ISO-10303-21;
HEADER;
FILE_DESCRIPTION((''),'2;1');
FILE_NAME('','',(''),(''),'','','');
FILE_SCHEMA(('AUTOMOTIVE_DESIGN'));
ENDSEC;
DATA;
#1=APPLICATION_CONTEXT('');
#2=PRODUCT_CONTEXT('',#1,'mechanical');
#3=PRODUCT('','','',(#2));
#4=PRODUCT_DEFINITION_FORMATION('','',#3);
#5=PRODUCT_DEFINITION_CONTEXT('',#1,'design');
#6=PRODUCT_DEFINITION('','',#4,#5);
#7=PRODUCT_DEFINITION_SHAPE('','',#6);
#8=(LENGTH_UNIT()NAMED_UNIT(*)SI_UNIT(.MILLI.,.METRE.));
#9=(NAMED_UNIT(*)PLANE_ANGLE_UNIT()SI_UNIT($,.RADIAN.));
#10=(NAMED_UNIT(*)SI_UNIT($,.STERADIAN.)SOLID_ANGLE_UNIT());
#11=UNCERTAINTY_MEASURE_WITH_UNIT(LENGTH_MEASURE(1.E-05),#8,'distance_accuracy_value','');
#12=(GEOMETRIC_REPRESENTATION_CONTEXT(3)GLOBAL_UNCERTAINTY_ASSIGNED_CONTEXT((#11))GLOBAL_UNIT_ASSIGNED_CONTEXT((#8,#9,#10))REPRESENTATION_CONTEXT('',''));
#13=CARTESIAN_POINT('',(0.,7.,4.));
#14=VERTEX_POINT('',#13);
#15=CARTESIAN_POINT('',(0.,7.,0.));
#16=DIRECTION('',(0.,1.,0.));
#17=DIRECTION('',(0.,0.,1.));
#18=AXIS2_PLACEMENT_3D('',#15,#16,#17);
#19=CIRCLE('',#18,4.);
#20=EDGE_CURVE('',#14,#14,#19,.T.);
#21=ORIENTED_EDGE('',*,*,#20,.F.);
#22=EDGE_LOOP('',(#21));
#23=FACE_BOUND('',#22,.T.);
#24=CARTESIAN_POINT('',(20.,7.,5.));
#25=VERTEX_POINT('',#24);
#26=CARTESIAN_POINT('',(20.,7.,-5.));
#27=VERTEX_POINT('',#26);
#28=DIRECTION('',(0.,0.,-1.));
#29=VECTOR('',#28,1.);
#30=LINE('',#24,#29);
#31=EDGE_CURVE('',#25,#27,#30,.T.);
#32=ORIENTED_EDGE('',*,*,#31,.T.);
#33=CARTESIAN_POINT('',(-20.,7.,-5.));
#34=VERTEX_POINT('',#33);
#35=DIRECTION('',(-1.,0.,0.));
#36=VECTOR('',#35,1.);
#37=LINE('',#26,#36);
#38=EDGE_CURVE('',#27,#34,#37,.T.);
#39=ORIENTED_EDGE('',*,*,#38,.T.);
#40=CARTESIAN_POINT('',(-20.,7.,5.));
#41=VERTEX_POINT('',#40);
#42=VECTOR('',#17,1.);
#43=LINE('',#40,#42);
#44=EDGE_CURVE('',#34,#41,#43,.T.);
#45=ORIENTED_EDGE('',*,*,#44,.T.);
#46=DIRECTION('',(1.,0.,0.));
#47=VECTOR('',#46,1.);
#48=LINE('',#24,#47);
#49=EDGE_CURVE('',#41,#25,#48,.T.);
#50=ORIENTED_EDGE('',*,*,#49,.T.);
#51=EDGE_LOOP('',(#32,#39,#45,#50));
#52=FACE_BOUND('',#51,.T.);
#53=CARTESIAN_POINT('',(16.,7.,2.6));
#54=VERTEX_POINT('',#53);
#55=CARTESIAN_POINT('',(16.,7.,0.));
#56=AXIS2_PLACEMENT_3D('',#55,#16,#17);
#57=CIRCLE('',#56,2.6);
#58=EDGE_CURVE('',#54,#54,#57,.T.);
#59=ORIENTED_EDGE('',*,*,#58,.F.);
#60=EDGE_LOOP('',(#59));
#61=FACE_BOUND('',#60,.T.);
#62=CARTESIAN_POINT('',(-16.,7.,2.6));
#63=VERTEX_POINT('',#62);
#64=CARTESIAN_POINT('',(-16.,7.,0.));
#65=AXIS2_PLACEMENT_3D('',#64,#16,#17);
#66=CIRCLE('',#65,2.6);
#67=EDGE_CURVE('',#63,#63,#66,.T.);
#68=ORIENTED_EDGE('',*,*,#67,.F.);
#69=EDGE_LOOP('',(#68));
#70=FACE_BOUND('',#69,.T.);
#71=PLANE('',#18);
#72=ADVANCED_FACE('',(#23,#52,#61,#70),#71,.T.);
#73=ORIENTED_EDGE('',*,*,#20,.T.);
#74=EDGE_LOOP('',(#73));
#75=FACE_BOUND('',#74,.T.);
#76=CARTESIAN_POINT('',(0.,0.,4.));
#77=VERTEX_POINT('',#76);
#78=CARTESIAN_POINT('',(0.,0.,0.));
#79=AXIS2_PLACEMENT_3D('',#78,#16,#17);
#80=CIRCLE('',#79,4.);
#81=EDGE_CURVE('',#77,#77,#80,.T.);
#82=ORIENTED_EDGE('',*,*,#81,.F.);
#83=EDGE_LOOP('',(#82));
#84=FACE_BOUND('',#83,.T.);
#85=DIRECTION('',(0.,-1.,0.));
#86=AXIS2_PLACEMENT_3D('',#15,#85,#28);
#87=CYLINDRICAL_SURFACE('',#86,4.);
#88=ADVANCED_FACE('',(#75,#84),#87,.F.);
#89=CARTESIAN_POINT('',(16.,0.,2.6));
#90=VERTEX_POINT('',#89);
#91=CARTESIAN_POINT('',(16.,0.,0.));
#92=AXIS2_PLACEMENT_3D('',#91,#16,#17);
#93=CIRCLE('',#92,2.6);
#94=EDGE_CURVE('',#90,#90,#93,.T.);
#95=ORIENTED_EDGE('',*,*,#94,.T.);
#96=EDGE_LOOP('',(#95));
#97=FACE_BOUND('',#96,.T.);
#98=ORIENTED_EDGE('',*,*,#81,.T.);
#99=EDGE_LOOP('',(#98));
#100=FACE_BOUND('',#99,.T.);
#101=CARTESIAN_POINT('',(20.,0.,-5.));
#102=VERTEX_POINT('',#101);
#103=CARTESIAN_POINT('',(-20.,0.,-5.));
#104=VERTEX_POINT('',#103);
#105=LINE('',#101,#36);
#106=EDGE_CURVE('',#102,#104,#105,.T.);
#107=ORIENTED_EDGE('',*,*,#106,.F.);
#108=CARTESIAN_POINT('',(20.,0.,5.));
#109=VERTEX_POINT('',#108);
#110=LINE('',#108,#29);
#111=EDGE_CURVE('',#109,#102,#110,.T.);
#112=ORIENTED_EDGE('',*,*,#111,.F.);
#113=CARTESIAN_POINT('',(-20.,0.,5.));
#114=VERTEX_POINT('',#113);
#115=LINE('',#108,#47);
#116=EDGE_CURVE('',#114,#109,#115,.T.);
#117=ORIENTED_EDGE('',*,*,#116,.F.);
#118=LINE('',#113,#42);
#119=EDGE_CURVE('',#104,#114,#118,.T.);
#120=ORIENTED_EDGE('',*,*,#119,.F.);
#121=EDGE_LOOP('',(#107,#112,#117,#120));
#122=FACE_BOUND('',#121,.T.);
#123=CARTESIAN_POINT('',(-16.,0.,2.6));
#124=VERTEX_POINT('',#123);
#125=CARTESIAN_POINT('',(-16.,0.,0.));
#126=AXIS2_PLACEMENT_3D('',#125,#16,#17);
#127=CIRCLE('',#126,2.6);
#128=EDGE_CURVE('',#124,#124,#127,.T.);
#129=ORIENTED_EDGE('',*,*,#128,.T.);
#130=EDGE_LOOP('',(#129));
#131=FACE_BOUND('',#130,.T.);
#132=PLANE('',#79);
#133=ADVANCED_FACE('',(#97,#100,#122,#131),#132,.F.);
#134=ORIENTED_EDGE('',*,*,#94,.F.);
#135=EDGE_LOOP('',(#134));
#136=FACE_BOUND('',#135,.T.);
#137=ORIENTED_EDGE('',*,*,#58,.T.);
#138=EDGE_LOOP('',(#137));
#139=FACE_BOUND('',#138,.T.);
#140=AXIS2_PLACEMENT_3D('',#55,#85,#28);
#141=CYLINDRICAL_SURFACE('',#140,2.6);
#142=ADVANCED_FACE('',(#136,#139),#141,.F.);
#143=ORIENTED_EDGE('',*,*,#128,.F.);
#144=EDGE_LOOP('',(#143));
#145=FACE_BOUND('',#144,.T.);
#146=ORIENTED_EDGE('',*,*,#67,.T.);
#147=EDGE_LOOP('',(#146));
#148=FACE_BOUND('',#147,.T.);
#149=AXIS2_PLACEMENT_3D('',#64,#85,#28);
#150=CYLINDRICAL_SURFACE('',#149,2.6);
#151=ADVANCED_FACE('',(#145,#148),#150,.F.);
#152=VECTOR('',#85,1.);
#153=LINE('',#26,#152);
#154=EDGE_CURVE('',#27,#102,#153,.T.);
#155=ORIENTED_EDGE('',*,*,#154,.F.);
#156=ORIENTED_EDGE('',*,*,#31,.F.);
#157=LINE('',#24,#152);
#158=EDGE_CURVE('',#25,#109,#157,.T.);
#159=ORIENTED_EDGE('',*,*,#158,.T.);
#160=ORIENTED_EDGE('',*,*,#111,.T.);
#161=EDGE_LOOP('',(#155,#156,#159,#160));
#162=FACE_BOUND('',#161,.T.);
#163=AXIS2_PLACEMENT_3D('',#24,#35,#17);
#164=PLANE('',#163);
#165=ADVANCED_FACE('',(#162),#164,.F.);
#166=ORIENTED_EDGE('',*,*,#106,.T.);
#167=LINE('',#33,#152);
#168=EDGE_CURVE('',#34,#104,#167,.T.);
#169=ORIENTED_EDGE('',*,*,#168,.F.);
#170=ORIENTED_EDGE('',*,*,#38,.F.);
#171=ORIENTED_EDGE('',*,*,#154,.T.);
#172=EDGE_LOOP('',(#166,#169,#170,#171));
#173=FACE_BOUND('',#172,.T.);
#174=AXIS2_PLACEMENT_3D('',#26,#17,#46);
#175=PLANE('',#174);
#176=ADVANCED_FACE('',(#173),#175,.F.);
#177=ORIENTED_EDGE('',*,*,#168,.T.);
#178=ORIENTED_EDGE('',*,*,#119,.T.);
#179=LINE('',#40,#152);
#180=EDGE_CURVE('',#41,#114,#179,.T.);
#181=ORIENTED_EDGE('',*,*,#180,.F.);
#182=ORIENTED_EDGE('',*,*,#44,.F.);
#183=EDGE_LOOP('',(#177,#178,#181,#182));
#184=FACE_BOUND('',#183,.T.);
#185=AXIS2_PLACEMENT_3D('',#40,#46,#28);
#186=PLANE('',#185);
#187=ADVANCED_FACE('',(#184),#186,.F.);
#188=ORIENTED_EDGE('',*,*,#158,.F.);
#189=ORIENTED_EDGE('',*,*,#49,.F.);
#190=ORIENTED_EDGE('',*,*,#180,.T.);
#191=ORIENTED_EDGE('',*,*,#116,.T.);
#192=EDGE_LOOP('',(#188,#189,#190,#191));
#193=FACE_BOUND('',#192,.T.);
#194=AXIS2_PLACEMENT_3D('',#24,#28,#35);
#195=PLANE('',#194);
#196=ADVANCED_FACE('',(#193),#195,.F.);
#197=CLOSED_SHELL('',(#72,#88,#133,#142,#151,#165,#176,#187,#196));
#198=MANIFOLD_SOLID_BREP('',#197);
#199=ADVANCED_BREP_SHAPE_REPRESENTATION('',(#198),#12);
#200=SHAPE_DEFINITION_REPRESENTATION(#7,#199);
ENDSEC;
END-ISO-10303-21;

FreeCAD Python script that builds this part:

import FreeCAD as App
import Part
import Sketcher
from FreeCAD import Vector


def add_polygon(sketch, points):
    """Adds a closed chain of lines whose ends are joined by coincident constraints."""
    first, n = sketch.GeometryCount, len(points)
    for a, b in zip(points, points[1:] + points[:1]):
        sketch.addGeometry(Part.LineSegment(App.Vector(*a, 0), App.Vector(*b, 0)), False)
    for i in range(n):
        sketch.addConstraint(Sketcher.Constraint("Coincident", first + i, 2, first + (i + 1) % n, 1))

doc = App.newDocument("Part")
body = doc.addObject("PartDesign::Body", "Body")

sketch1 = body.newObject("Sketcher::SketchObject", "Sketch")
sketch1.AttachmentSupport = (doc.getObject("XZ_Plane"), [""])
sketch1.MapMode = "FlatFace"
add_polygon(sketch1, [(-20, -5), (-20, 5), (20, 5), (20, -5)])
sketch1.addGeometry(Part.Circle(Vector(-16, 0, 0), Vector(0, 0, 1), 2.6), False)
sketch1.addGeometry(Part.Circle(Vector(0, 0, 0), Vector(0, 0, 1), 4), False)
sketch1.addGeometry(Part.Circle(Vector(16, 0, 0), Vector(0, 0, 1), 2.6), False)
sketch1.addConstraint([
    Sketcher.Constraint("Vertical", 0),
    Sketcher.Constraint("Horizontal", 1),
    Sketcher.Constraint("Vertical", 2),
    Sketcher.Constraint("Horizontal", 3),
    Sketcher.Constraint("Coincident", 5, 3, -1, 1),
    Sketcher.Constraint("Equal", 4, 6),
    Sketcher.Constraint("Symmetric", 4, 3, 6, 3, -1, 1),
    Sketcher.Constraint("Symmetric", 0, 2, 2, 2, -1, 1),
    Sketcher.Constraint("PointOnObject", 4, 3, -1),
    Sketcher.Constraint("Diameter", 5, 8.0),
    Sketcher.Constraint("Diameter", 4, 5.2),
    Sketcher.Constraint("DistanceX", 1, 1, 1, 2, 40.0),
    Sketcher.Constraint("DistanceY", 0, 1, 0, 2, 10.0),
    Sketcher.Constraint("DistanceX", 4, 3, -1, 1, 16.0),
])
pad1 = body.newObject("PartDesign::Pad", "Pad")
pad1.Profile = sketch1
pad1.Length = 7
pad1.Reversed = True

doc.recompute()
